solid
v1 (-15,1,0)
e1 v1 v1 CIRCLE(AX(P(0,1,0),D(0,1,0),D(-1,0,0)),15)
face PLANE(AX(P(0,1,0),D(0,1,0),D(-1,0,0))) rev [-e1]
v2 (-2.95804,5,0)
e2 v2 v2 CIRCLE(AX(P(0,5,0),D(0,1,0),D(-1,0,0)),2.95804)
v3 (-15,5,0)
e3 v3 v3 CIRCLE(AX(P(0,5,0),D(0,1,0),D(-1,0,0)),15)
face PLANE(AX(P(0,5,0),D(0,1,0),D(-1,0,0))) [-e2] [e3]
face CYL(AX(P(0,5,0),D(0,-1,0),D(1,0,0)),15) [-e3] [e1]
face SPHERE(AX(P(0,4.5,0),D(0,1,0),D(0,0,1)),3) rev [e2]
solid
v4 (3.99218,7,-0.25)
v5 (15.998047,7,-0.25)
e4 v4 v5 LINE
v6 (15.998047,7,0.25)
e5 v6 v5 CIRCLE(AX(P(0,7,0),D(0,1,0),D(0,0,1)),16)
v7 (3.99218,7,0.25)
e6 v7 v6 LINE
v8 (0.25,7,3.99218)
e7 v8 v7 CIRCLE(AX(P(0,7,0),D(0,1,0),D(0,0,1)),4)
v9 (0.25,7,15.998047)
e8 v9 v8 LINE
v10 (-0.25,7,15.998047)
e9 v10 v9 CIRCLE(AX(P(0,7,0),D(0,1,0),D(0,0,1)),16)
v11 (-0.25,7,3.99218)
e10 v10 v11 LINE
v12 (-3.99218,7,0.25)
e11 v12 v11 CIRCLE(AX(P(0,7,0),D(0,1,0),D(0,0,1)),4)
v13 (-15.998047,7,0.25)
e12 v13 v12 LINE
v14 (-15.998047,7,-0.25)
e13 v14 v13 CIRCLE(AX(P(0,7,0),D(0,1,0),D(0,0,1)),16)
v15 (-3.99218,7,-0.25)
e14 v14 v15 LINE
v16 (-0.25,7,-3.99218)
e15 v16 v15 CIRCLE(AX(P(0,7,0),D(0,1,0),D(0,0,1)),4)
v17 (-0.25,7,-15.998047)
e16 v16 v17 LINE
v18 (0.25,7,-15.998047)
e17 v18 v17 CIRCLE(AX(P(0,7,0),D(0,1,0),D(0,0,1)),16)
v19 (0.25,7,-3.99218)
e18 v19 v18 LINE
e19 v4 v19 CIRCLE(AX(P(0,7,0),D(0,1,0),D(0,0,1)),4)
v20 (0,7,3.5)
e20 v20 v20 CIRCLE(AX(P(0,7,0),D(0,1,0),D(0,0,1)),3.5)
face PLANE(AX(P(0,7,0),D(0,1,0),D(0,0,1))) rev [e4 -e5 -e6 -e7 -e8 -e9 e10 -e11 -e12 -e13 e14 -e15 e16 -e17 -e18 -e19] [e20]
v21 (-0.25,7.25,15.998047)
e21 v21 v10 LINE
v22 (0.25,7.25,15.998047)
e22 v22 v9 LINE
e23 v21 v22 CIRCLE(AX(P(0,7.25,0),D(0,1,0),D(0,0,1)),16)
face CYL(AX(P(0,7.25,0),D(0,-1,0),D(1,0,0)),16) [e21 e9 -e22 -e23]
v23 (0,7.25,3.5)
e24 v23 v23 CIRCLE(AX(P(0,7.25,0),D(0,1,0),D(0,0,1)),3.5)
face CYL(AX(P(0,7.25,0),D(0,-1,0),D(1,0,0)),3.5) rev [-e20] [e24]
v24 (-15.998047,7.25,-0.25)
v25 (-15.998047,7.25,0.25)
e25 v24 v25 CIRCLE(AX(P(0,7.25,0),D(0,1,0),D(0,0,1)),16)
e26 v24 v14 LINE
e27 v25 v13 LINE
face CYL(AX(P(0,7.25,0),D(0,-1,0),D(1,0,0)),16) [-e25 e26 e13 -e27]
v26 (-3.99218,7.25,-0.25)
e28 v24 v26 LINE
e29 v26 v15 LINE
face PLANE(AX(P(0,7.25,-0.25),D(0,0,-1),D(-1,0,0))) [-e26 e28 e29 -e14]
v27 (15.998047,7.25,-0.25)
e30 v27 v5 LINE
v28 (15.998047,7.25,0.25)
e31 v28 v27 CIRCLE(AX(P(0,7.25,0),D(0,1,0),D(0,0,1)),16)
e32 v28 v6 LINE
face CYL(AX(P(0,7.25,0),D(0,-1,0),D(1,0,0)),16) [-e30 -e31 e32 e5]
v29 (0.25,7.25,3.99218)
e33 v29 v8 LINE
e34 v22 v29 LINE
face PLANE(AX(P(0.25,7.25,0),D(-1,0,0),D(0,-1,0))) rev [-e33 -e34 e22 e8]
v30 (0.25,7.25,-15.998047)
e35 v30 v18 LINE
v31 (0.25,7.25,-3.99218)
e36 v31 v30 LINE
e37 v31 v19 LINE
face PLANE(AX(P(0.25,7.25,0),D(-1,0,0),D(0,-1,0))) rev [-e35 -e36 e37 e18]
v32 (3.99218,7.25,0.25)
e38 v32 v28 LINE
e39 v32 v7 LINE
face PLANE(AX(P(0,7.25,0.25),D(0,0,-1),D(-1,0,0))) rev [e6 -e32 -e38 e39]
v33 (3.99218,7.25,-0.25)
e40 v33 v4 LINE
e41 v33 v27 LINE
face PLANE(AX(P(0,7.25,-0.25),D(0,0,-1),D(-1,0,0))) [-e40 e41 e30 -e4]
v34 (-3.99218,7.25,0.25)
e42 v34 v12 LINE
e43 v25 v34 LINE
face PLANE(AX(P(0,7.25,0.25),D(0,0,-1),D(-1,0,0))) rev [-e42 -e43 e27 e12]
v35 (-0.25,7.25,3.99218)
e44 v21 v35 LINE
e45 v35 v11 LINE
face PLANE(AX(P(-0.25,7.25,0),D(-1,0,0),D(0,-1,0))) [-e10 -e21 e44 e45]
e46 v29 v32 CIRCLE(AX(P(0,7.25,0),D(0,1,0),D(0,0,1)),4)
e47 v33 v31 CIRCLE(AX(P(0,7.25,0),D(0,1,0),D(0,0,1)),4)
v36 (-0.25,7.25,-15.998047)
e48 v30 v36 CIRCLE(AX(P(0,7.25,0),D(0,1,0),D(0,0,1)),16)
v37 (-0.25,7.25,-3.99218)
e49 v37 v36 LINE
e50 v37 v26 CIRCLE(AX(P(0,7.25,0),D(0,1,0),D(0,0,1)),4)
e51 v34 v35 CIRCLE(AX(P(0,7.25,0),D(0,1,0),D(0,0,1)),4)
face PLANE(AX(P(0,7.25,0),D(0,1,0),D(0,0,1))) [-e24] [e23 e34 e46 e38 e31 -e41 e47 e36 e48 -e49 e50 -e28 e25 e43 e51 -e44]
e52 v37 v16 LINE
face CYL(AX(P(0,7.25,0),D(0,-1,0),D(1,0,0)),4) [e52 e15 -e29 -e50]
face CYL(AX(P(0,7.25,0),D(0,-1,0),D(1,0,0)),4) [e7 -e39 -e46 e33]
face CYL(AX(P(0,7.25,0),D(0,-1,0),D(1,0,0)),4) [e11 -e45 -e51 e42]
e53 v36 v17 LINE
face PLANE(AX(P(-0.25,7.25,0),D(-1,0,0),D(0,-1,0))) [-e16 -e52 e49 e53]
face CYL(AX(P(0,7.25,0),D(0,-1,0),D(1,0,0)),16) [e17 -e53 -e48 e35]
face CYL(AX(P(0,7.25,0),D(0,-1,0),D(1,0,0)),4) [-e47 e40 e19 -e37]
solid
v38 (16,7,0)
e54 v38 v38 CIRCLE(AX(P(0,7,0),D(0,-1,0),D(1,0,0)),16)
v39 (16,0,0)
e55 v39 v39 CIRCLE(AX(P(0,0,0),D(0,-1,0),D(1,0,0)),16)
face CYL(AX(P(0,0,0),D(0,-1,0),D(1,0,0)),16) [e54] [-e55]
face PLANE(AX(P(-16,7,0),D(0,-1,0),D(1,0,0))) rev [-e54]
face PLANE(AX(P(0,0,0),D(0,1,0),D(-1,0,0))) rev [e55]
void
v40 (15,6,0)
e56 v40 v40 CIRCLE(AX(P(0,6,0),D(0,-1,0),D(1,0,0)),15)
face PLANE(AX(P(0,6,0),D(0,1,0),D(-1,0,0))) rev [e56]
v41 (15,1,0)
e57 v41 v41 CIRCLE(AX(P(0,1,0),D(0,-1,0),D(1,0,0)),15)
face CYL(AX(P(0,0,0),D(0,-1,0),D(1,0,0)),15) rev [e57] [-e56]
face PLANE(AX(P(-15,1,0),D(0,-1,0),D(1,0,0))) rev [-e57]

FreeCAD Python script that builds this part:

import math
import FreeCAD as App
import Part
import Sketcher

V = App.Vector
Q = App.Units.Quantity

doc = App.newDocument("Part")
body = doc.addObject("PartDesign::Body", "Body")

sketch1 = body.newObject("Sketcher::SketchObject", "Sketch")
sketch1.AttachmentSupport = (doc.getObject("XY_Plane"), [""])
sketch1.MapMode = "FlatFace"
sketch1.addGeometry([
    Part.LineSegment(V(-16, 0, 0), V(0, 0, 0)),
    Part.LineSegment(V(0, 0, 0), V(0, 1, 0)),
    Part.LineSegment(V(0, 1, 0), V(-15, 1, 0)),
    Part.LineSegment(V(-15, 1, 0), V(-15, 6, 0)),
    Part.LineSegment(V(-15, 6, 0), V(0, 6, 0)),
    Part.LineSegment(V(0, 6, 0), V(0, 7, 0)),
    Part.LineSegment(V(0, 7, 0), V(-16, 7, 0)),
    Part.LineSegment(V(-16, 7, 0), V(-16, 0, 0)),
], False)
sketch1.addConstraint([
    Sketcher.Constraint("Coincident", 0, 2, 1, 1),
    Sketcher.Constraint("Coincident", 1, 2, 2, 1),
    Sketcher.Constraint("Coincident", 2, 2, 3, 1),
    Sketcher.Constraint("Coincident", 3, 2, 4, 1),
    Sketcher.Constraint("Coincident", 4, 2, 5, 1),
    Sketcher.Constraint("Coincident", 5, 2, 6, 1),
    Sketcher.Constraint("Coincident", 6, 2, 7, 1),
    Sketcher.Constraint("Coincident", 7, 2, 0, 1),
    Sketcher.Constraint("Horizontal", 0),
    Sketcher.Constraint("Vertical", 1),
    Sketcher.Constraint("Horizontal", 2),
    Sketcher.Constraint("Vertical", 3),
    Sketcher.Constraint("Horizontal", 4),
    Sketcher.Constraint("Vertical", 5),
    Sketcher.Constraint("Horizontal", 6),
    Sketcher.Constraint("Vertical", 7),
    Sketcher.Constraint("Coincident", 0, 2, -1, 1),
    Sketcher.Constraint("PointOnObject", 4, 2, -2),
    Sketcher.Constraint("Equal", 1, 5),
    Sketcher.Constraint("DistanceX", 0, 1, 0, 2, Q("16 mm")),
    Sketcher.Constraint("DistanceX", 2, 2, 2, 1, Q("15 mm")),
    Sketcher.Constraint("DistanceY", 1, 1, 1, 2, Q("1 mm")),
    Sketcher.Constraint("DistanceY", 3, 1, 3, 2, Q("5 mm")),
])
revolution = body.newObject("PartDesign::Revolution", "Revolution")
revolution.Profile = sketch1
revolution.ReferenceAxis = (sketch1, ["V_Axis"])
revolution.Angle = 360
body2 = doc.addObject("PartDesign::Body", "Body001")

sketch2 = body2.newObject("Sketcher::SketchObject", "Sketch001")
sketch2.AttachmentSupport = (doc.getObject("XZ_Plane001"), [""])
sketch2.MapMode = "FlatFace"
sketch2.AttachmentOffset = App.Placement(V(0, 0, -1), App.Rotation())
sketch2.addGeometry(Part.Circle(V(0, 0, 0), V(0, 0, 1), 15), False)
sketch2.addConstraint([
    Sketcher.Constraint("Coincident", 0, 3, -1, 1),
    Sketcher.Constraint("Diameter", 0, Q("30 mm")),
])
pad1 = body2.newObject("PartDesign::Pad", "Pad")
pad1.Profile = sketch2
pad1.Length = 4
pad1.Reversed = True

sketch3 = body2.newObject("Sketcher::SketchObject", "Sketch002")
sketch3.AttachmentSupport = (doc.getObject("YZ_Plane001"), [""])
sketch3.MapMode = "FlatFace"
sketch3.addGeometry([
    Part.LineSegment(V(1.5, 0, 0), V(7.5, 0, 0)),
    Part.ArcOfCircle(Part.Circle(V(4.5, 0, 0), V(0, 0, 1), 3), math.radians(0), math.radians(180)),
], False)
sketch3.addConstraint([
    Sketcher.Constraint("Coincident", 0, 1, 1, 2),
    Sketcher.Constraint("Coincident", 1, 1, 0, 2),
    Sketcher.Constraint("Horizontal", 0),
    Sketcher.Constraint("PointOnObject", 1, 3, -1),
    Sketcher.Constraint("PointOnObject", 0, 1, -1),
    Sketcher.Constraint("Radius", 1, Q("3 mm")),
    Sketcher.Constraint("DistanceX", -1, 1, 1, 3, Q("4.5 mm")),
])
groove = body2.newObject("PartDesign::Groove", "Groove")
groove.Profile = sketch3
groove.ReferenceAxis = (sketch3, ["H_Axis"])
groove.Angle = 360
body3 = doc.addObject("PartDesign::Body", "Body002")

sketch4 = body3.newObject("Sketcher::SketchObject", "Sketch003")
sketch4.AttachmentSupport = (doc.getObject("XZ_Plane002"), [""])
sketch4.MapMode = "FlatFace"
sketch4.AttachmentOffset = App.Placement(V(0, 0, -7), App.Rotation())
sketch4.addGeometry([
    Part.ArcOfCircle(Part.Circle(V(0, 0, 0), V(0, 0, 1), 4), math.radians(-86), math.radians(-4)),
    Part.LineSegment(V(0.25, -3.99, 0), V(0.25, -16, 0)),
    Part.ArcOfCircle(Part.Circle(V(0, 0, 0), V(0, 0, 1), 16), math.radians(-90.9), math.radians(-89.1)),
    Part.LineSegment(V(-0.25, -16, 0), V(-0.25, -3.99, 0)),
    Part.ArcOfCircle(Part.Circle(V(0, 0, 0), V(0, 0, 1), 4), math.radians(-176), math.radians(-94)),
    Part.LineSegment(V(-3.99, -0.25, 0), V(-16, -0.25, 0)),
    Part.ArcOfCircle(Part.Circle(V(0, 0, 0), V(0, 0, 1), 16), math.radians(179.1), math.radians(180.9)),
    Part.LineSegment(V(-16, 0.25, 0), V(-3.99, 0.25, 0)),
    Part.ArcOfCircle(Part.Circle(V(0, 0, 0), V(0, 0, 1), 4), math.radians(94), math.radians(176)),
    Part.LineSegment(V(-0.25, 3.99, 0), V(-0.25, 16, 0)),
    Part.ArcOfCircle(Part.Circle(V(0, 0, 0), V(0, 0, 1), 16), math.radians(89.1), math.radians(90.9)),
    Part.LineSegment(V(0.25, 16, 0), V(0.25, 3.99, 0)),
    Part.ArcOfCircle(Part.Circle(V(0, 0, 0), V(0, 0, 1), 4), math.radians(4), math.radians(86)),
    Part.LineSegment(V(3.99, 0.25, 0), V(16, 0.25, 0)),
    Part.ArcOfCircle(Part.Circle(V(0, 0, 0), V(0, 0, 1), 16), math.radians(0), math.radians(0.9)),
    Part.ArcOfCircle(Part.Circle(V(0, 0, 0), V(0, 0, 1), 16), math.radians(-0.9), math.radians(0)),
    Part.LineSegment(V(16, -0.25, 0), V(3.99, -0.25, 0)),
    Part.Circle(V(0, 0, 0), V(0, 0, 1), 3.5),
], False)
sketch4.addConstraint([
    Sketcher.Constraint("Coincident", 0, 1, 1, 1),
    Sketcher.Constraint("Coincident", 1, 2, 2, 2),
    Sketcher.Constraint("Coincident", 2, 1, 3, 1),
    Sketcher.Constraint("Coincident", 3, 2, 4, 2),
    Sketcher.Constraint("Coincident", 4, 1, 5, 1),
    Sketcher.Constraint("Coincident", 5, 2, 6, 2),
    Sketcher.Constraint("Coincident", 6, 1, 7, 1),
    Sketcher.Constraint("Coincident", 7, 2, 8, 2),
    Sketcher.Constraint("Coincident", 8, 1, 9, 1),
    Sketcher.Constraint("Coincident", 9, 2, 10, 2),
    Sketcher.Constraint("Coincident", 10, 1, 11, 1),
    Sketcher.Constraint("Coincident", 11, 2, 12, 2),
    Sketcher.Constraint("Coincident", 12, 1, 13, 1),
    Sketcher.Constraint("Coincident", 13, 2, 14, 2),
    Sketcher.Constraint("Tangent", 14, 1, 15, 2),
    Sketcher.Constraint("Coincident", 15, 1, 16, 1),
    Sketcher.Constraint("Coincident", 16, 2, 0, 2),
    Sketcher.Constraint("Vertical", 1),
    Sketcher.Constraint("Vertical", 3),
    Sketcher.Constraint("Horizontal", 5),
    Sketcher.Constraint("Horizontal", 7),
    Sketcher.Constraint("Vertical", 9),
    Sketcher.Constraint("Vertical", 11),
    Sketcher.Constraint("Horizontal", 13),
    Sketcher.Constraint("Horizontal", 16),
    Sketcher.Constraint("Coincident", 0, 3, -1, 1),
    Sketcher.Constraint("Coincident", 2, 3, -1, 1),
    Sketcher.Constraint("Coincident", 4, 3, -1, 1),
    Sketcher.Constraint("Coincident", 6, 3, -1, 1),
    Sketcher.Constraint("Coincident", 8, 3, -1, 1),
    Sketcher.Constraint("Coincident", 10, 3, -1, 1),
    Sketcher.Constraint("Coincident", 12, 3, -1, 1),
    Sketcher.Constraint("Coincident", 17, 3, -1, 1),
    Sketcher.Constraint("Equal", 0, 4),
    Sketcher.Constraint("Equal", 2, 6),
    Sketcher.Constraint("Equal", 4, 8),
    Sketcher.Constraint("Equal", 6, 10),
    Sketcher.Constraint("Equal", 8, 12),
    Sketcher.Constraint("Equal", 14, 15),
    Sketcher.Constraint("Symmetric", 5, 2, 13, 2, -1, 1),
    Sketcher.Constraint("Symmetric", 6, 1, 15, 1, -1, 1),
    Sketcher.Constraint("PointOnObject", 14, 1, -1),
    Sketcher.Constraint("Horizontal", 1, 2, 2, 1),
    Sketcher.Constraint("Horizontal", 9, 2, 10, 1),
    Sketcher.Constraint("Horizontal", 7, 2, 12, 1),
    Sketcher.Constraint("Vertical", 3, 2, 8, 1),
    Sketcher.Constraint("Equal", 16, 1),
    Sketcher.Constraint("Diameter", 17, Q("7 mm")),
    Sketcher.Constraint("Radius", 0, Q("4 mm")),
    Sketcher.Constraint("Radius", 2, Q("16.000002 mm")),
    Sketcher.Constraint("DistanceX", 2, 1, 1, 2, Q("0.5 mm")),
    Sketcher.Constraint("Radius", 14, Q("16.00002 mm")),
])
pad2 = body3.newObject("PartDesign::Pad", "Pad001")
pad2.Profile = sketch4
pad2.Length = 0.25
pad2.Reversed = True

doc.recompute()
